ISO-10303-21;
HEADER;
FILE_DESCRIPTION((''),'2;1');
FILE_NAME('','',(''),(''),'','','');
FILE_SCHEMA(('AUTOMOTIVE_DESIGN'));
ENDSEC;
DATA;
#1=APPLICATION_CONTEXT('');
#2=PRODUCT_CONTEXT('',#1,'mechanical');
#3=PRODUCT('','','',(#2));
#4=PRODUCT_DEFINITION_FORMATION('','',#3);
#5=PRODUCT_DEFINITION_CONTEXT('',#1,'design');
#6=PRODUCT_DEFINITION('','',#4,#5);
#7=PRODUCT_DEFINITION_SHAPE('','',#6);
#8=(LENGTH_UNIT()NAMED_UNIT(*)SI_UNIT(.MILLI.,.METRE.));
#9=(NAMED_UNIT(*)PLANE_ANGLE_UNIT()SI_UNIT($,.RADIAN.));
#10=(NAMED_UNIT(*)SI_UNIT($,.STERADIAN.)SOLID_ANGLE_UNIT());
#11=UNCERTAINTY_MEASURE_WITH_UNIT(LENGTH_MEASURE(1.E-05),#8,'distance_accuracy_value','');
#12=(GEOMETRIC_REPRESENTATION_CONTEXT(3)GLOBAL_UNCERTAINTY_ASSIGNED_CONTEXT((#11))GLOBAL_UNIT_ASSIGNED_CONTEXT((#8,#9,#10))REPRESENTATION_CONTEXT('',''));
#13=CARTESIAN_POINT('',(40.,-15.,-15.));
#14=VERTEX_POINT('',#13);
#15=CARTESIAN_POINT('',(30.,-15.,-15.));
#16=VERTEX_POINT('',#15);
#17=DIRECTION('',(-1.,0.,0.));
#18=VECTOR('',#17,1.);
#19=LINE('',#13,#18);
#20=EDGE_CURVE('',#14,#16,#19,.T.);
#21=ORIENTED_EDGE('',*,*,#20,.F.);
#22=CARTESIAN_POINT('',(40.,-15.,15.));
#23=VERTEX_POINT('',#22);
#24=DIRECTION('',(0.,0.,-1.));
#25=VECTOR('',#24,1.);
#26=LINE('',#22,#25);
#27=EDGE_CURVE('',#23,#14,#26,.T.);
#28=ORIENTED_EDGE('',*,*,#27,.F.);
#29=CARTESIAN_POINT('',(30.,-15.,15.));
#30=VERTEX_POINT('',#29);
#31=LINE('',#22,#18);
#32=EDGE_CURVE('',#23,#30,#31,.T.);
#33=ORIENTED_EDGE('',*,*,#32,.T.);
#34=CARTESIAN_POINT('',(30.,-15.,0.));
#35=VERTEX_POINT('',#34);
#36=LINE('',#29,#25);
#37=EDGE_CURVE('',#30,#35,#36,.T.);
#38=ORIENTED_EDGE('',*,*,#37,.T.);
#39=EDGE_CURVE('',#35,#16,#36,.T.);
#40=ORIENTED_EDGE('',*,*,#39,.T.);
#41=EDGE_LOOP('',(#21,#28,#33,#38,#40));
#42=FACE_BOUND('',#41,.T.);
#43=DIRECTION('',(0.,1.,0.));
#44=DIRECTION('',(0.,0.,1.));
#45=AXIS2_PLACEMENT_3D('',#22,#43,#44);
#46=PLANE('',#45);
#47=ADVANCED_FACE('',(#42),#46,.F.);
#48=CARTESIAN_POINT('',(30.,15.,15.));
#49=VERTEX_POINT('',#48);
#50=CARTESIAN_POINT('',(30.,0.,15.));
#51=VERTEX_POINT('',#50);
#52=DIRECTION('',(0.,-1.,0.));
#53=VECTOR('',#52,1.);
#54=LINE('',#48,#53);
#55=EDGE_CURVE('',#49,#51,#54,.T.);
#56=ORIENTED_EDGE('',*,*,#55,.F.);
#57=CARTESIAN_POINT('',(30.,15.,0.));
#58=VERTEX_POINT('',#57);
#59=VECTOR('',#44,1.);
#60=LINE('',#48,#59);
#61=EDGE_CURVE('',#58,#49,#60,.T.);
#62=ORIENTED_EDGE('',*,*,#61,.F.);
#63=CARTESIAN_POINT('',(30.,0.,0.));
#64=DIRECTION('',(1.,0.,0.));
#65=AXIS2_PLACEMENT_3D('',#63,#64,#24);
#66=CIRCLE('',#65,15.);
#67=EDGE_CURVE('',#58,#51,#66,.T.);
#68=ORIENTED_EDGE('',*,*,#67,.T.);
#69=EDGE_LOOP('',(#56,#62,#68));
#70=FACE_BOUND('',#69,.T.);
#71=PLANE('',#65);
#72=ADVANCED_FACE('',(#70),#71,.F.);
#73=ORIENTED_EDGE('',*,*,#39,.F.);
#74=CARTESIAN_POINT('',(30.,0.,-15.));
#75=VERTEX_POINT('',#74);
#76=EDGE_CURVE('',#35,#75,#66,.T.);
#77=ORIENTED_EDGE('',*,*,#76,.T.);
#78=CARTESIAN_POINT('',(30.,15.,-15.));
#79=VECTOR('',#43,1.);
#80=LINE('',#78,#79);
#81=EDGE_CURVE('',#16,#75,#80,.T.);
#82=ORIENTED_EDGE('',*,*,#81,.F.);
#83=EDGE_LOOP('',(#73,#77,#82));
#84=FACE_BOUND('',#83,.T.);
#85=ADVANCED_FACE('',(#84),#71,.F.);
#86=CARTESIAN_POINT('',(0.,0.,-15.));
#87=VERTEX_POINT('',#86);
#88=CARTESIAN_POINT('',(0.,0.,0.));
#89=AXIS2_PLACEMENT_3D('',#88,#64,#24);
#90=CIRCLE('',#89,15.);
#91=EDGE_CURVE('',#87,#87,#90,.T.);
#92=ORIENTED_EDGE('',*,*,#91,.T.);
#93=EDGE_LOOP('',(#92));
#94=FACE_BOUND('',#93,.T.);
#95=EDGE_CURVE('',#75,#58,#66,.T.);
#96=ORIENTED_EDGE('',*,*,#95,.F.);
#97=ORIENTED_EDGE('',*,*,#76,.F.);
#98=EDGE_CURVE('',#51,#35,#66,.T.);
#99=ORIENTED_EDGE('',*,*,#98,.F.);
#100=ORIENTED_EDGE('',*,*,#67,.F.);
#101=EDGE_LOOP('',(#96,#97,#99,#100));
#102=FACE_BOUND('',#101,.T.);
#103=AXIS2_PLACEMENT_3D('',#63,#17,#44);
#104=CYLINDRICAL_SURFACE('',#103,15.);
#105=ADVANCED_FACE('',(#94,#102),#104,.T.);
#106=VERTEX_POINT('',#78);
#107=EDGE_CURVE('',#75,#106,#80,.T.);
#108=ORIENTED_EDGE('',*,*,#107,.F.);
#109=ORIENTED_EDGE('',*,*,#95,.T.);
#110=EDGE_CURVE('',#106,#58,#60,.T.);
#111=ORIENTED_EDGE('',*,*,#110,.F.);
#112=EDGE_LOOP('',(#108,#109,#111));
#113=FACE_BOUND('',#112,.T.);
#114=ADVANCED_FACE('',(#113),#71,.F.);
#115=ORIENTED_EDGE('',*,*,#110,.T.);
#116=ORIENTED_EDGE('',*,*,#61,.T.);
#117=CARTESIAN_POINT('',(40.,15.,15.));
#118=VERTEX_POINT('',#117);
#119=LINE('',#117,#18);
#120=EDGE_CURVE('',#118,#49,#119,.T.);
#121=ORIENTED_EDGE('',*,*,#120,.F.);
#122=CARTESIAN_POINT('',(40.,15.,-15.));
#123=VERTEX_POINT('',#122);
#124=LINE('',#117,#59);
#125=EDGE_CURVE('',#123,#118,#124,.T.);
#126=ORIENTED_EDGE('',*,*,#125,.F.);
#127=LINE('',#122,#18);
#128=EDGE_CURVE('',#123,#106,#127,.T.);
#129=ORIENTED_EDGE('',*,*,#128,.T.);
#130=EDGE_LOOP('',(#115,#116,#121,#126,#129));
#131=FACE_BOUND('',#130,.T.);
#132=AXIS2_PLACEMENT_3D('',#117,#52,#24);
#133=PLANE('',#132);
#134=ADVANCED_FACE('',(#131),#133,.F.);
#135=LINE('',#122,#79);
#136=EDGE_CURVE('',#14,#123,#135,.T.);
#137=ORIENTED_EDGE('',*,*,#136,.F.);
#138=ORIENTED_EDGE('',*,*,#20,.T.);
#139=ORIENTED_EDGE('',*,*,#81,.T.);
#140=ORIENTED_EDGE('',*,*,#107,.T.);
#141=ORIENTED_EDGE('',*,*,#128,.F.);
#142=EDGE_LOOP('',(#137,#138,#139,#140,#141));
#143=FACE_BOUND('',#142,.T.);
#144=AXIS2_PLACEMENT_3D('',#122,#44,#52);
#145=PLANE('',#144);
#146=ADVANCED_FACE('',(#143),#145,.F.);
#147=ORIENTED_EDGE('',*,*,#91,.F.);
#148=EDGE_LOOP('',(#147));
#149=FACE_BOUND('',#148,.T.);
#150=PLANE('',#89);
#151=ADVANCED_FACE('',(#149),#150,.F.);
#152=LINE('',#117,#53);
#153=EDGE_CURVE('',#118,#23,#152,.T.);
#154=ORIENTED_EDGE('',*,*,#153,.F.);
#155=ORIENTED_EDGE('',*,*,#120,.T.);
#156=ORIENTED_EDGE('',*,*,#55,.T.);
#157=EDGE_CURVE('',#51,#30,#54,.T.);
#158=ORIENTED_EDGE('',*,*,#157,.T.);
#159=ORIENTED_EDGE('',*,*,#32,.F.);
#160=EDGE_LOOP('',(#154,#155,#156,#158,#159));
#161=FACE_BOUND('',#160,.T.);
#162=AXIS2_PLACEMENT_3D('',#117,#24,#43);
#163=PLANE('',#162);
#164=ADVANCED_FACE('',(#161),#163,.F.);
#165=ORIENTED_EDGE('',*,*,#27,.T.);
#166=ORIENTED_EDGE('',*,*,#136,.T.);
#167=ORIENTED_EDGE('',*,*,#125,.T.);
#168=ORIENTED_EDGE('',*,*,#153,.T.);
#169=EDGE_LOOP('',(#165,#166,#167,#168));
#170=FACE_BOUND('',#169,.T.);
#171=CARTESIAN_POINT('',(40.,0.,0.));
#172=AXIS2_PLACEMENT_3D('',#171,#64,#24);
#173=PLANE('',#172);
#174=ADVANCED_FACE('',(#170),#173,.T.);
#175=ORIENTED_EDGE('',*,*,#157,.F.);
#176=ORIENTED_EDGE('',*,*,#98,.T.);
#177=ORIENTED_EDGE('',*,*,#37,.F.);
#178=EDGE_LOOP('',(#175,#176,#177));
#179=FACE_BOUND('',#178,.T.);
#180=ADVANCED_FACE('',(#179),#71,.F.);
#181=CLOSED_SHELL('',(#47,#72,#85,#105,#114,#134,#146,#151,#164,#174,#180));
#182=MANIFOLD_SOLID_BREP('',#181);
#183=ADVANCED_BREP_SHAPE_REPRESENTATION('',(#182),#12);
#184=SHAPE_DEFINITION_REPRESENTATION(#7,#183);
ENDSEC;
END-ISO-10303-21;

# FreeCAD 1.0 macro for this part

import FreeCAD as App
import Part
import Sketcher

V = App.Vector

doc = App.newDocument("Part")
body = doc.addObject("PartDesign::Body", "Body")

# Sketch on YZ plane
sketch1 = body.newObject("Sketcher::SketchObject", "Sketch")
sketch1.AttachmentSupport = (doc.getObject("YZ_Plane"), [""])
sketch1.MapMode = "FlatFace"
sketch1.addGeometry(Part.Circle(V(0, 0, 0), V(0, 0, 1), 15), False)
sketch1.addConstraint(Sketcher.Constraint("Coincident", 0, 3, -1, 1))
sketch1.addConstraint(Sketcher.Constraint("Diameter", 0, 30.0))
pad1 = body.newObject("PartDesign::Pad", "Pad")
pad1.Profile = sketch1
pad1.Length = 30

# Sketch on YZ plane
sketch2 = body.newObject("Sketcher::SketchObject", "Sketch001")
sketch2.AttachmentSupport = (doc.getObject("YZ_Plane"), [""])
sketch2.MapMode = "FlatFace"
sketch2.AttachmentOffset = App.Placement(V(0, 0, 30), App.Rotation())
sketch2.addGeometry(Part.LineSegment(V(15, 15, 0), V(-15, 15, 0)), False)
sketch2.addGeometry(Part.LineSegment(V(-15, 15, 0), V(-15, -15, 0)), False)
sketch2.addGeometry(Part.LineSegment(V(-15, -15, 0), V(15, -15, 0)), False)
sketch2.addGeometry(Part.LineSegment(V(15, -15, 0), V(15, 15, 0)), False)
sketch2.addConstraint(Sketcher.Constraint("Coincident", 0, 2, 1, 1))
sketch2.addConstraint(Sketcher.Constraint("Coincident", 1, 2, 2, 1))
sketch2.addConstraint(Sketcher.Constraint("Coincident", 2, 2, 3, 1))
sketch2.addConstraint(Sketcher.Constraint("Coincident", 3, 2, 0, 1))
sketch2.addConstraint(Sketcher.Constraint("Horizontal", 0))
sketch2.addConstraint(Sketcher.Constraint("Vertical", 1))
sketch2.addConstraint(Sketcher.Constraint("Horizontal", 2))
sketch2.addConstraint(Sketcher.Constraint("Vertical", 3))
sketch2.addConstraint(Sketcher.Constraint("Symmetric", 0, 2, 2, 2, -1, 1))
sketch2.addConstraint(Sketcher.Constraint("Equal", 2, 1))
sketch2.addConstraint(Sketcher.Constraint("DistanceX", 0, 2, 0, 1, 30.0))
pad2 = body.newObject("PartDesign::Pad", "Pad001")
pad2.Profile = sketch2
pad2.Length = 10

doc.recompute()
